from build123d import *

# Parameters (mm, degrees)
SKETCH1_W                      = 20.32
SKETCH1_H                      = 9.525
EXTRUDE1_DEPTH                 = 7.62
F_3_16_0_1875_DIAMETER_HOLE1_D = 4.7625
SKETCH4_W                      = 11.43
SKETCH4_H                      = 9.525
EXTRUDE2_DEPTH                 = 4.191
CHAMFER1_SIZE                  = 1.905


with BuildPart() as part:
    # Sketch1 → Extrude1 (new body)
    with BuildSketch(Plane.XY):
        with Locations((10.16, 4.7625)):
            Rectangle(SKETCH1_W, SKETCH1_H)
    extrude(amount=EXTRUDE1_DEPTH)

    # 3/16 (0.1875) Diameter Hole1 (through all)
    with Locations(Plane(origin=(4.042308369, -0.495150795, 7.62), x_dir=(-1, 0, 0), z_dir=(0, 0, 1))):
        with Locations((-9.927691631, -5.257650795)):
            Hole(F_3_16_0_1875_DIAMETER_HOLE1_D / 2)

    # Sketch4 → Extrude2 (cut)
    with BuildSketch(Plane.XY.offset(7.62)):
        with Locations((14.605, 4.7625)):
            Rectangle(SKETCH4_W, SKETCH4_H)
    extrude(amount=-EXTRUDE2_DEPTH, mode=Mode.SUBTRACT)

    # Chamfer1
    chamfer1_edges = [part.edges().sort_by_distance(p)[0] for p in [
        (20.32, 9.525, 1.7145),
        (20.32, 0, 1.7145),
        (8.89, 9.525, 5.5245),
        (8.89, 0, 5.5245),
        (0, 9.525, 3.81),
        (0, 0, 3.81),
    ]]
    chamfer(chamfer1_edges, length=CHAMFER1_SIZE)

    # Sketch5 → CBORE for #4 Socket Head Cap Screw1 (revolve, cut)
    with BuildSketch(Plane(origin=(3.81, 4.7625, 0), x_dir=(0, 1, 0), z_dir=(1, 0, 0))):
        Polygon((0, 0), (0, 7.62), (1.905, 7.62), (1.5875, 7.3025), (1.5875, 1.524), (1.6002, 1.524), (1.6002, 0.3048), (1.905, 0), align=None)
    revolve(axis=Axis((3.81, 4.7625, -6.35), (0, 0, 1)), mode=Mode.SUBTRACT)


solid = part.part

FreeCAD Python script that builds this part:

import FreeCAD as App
import Part
import Sketcher
Q = App.Units.Quantity


def edges_at(feature, points):
    """Names of the edges that pass closest to the given points."""
    edges = feature.Shape.Edges
    near = lambda p: min(range(len(edges)), key=lambda i: edges[i].distToShape(Part.Vertex(*p))[0])
    return sorted({f"Edge{near(p) + 1}" for p in points})


def add_polygon(sketch, points):
    """Adds a closed chain of lines whose ends are joined by coincident constraints."""
    first, n = sketch.GeometryCount, len(points)
    for a, b in zip(points, points[1:] + points[:1]):
        sketch.addGeometry(Part.LineSegment(App.Vector(*a, 0), App.Vector(*b, 0)), False)
    for i in range(n):
        sketch.addConstraint(Sketcher.Constraint("Coincident", first + i, 2, first + (i + 1) % n, 1))

doc = App.newDocument("Part")
body = doc.addObject("PartDesign::Body", "Body")

# Sketch on XY plane
sketch1 = body.newObject("Sketcher::SketchObject", "Sketch")
sketch1.AttachmentSupport = (doc.getObject("XY_Plane"), [""])
sketch1.MapMode = "FlatFace"
add_polygon(sketch1, [(0, 10), (0, 0), (20, 0), (20, 10)])  # lines 0-3
sketch1.addConstraint([
    Sketcher.Constraint("Vertical", 0),
    Sketcher.Constraint("Horizontal", 1),
    Sketcher.Constraint("Vertical", 2),
    Sketcher.Constraint("Horizontal", 3),
    Sketcher.Constraint("Coincident", 0, 2, -1, 1),
    Sketcher.Constraint("DistanceX", 1, 1, 1, 2, Q("0.8 in")),
    Sketcher.Constraint("DistanceY", 0, 2, 0, 1, Q("0.375 in")),
])
pad1 = body.newObject("PartDesign::Pad", "Pad")
pad1.Profile = sketch1
pad1.Length = Q("0.3 in")

# Sketch on XY plane
sketch2 = body.newObject("Sketcher::SketchObject", "Sketch001")
sketch2.AttachmentSupport = (doc.getObject("XY_Plane"), [""])
sketch2.MapMode = "FlatFace"
sketch2.AttachmentOffset = App.Placement(App.Vector(0, 0, 0.3 * 25.4), App.Rotation())
sketch2.addGeometry(Part.Circle(App.Vector(14, 4.8, 0), App.Vector(0, 0, 1), 2.4), False)
sketch2.addConstraint([
    Sketcher.Constraint("Diameter", 0, Q("0.1875 in")),
    Sketcher.Constraint("DistanceX", -1, 1, 0, 3, Q("0.55 in")),
    Sketcher.Constraint("DistanceY", -1, 1, 0, 3, Q("0.1875 in")),
])
doc.recompute()
hole = body.newObject("PartDesign::Hole", "Hole")
hole.Profile = sketch2
hole.ThreadType = "None"
hole.Diameter = Q("0.1875 in")
hole.DepthType = "ThroughAll"

# Sketch on XY plane
sketch3 = body.newObject("Sketcher::SketchObject", "Sketch002")
sketch3.AttachmentSupport = (doc.getObject("XY_Plane"), [""])
sketch3.MapMode = "FlatFace"
sketch3.AttachmentOffset = App.Placement(App.Vector(0, 0, 0.3 * 25.4), App.Rotation())
add_polygon(sketch3, [(9, 10), (9, 0), (20, 0), (20, 10)])  # lines 0-3
sketch3.addConstraint([
    Sketcher.Constraint("Vertical", 0),
    Sketcher.Constraint("Horizontal", 1),
    Sketcher.Constraint("Vertical", 2),
    Sketcher.Constraint("Horizontal", 3),
    Sketcher.Constraint("PointOnObject", 0, 2, -1),
    Sketcher.Constraint("DistanceX", 1, 1, 1, 2, Q("0.45 in")),
    Sketcher.Constraint("DistanceX", -1, 1, 1, 2, Q("0.8 in")),
    Sketcher.Constraint("DistanceY", 0, 2, 0, 1, Q("0.375 in")),
])
pocket1 = body.newObject("PartDesign::Pocket", "Pocket")
pocket1.Profile = sketch3
pocket1.Length = Q("0.165 in")
doc.recompute()

chamfer = body.newObject("PartDesign::Chamfer", "Chamfer")
chamfer.Base = (pocket1, edges_at(pocket1, [
    (20.32, 9.525, 1.714),
    (20.32, 0, 1.714),
    (8.89, 9.525, 5.524),
    (8.89, 0, 5.524),
    (0, 9.525, 3.81),
    (0, 0, 3.81),
]))
chamfer.Size = Q("0.075 in")

# Sketch on YZ plane
sketch4 = body.newObject("Sketcher::SketchObject", "Sketch003")
sketch4.AttachmentSupport = (doc.getObject("YZ_Plane"), [""])
sketch4.MapMode = "FlatFace"
sketch4.AttachmentOffset = App.Placement(App.Vector(0, 0, 0.15 * 25.4), App.Rotation())
add_polygon(sketch4, [(4.763, 7.62), (4.763, 0), (6.668, 0), (6.363, 0.305), (6.363, 1.524), (6.35, 1.524), (6.35, 7.303), (6.668, 7.62)])  # lines 0-7
sketch4.addGeometry(Part.LineSegment(App.Vector(4.763, 0, 0), App.Vector(4.763, 7.62, 0)), True)  # axis
sketch4.addConstraint([
    Sketcher.Constraint("Vertical", 0),
    Sketcher.Constraint("Horizontal", 1),
    Sketcher.Constraint("Vertical", 3),
    Sketcher.Constraint("Horizontal", 4),
    Sketcher.Constraint("Vertical", 5),
    Sketcher.Constraint("Horizontal", 7),
    Sketcher.Constraint("Vertical", 8),
    Sketcher.Constraint("Coincident", 8, 1, 0, 2),
    Sketcher.Constraint("PointOnObject", 0, 2, -1),
    Sketcher.Constraint("Perpendicular", 2, 6),
    Sketcher.Constraint("Horizontal", 6, 2, 8, 2),
    Sketcher.Constraint("Vertical", 1, 2, 6, 2),
    Sketcher.Constraint("DistanceY", 0, 2, 0, 1, Q("0.3 in")),
    Sketcher.Constraint("Angle", 2, Q("135 deg")),
    Sketcher.Constraint("DistanceX", 1, 1, 1, 2, Q("0.075 in")),
    Sketcher.Constraint("DistanceY", 3, 1, 3, 2, Q("0.048 in")),
    Sketcher.Constraint("DistanceY", -1, 1, 3, 2, Q("0.06 in")),
    Sketcher.Constraint("DistanceX", -1, 1, 4, 2, Q("0.25 in")),
    Sketcher.Constraint("DistanceX", 4, 2, 4, 1, Q("0.0005 in")),
])
groove = body.newObject("PartDesign::Groove", "Groove")
groove.Profile = sketch4
groove.ReferenceAxis = (sketch4, ["Axis0"])
groove.Angle = 360

doc.recompute()
